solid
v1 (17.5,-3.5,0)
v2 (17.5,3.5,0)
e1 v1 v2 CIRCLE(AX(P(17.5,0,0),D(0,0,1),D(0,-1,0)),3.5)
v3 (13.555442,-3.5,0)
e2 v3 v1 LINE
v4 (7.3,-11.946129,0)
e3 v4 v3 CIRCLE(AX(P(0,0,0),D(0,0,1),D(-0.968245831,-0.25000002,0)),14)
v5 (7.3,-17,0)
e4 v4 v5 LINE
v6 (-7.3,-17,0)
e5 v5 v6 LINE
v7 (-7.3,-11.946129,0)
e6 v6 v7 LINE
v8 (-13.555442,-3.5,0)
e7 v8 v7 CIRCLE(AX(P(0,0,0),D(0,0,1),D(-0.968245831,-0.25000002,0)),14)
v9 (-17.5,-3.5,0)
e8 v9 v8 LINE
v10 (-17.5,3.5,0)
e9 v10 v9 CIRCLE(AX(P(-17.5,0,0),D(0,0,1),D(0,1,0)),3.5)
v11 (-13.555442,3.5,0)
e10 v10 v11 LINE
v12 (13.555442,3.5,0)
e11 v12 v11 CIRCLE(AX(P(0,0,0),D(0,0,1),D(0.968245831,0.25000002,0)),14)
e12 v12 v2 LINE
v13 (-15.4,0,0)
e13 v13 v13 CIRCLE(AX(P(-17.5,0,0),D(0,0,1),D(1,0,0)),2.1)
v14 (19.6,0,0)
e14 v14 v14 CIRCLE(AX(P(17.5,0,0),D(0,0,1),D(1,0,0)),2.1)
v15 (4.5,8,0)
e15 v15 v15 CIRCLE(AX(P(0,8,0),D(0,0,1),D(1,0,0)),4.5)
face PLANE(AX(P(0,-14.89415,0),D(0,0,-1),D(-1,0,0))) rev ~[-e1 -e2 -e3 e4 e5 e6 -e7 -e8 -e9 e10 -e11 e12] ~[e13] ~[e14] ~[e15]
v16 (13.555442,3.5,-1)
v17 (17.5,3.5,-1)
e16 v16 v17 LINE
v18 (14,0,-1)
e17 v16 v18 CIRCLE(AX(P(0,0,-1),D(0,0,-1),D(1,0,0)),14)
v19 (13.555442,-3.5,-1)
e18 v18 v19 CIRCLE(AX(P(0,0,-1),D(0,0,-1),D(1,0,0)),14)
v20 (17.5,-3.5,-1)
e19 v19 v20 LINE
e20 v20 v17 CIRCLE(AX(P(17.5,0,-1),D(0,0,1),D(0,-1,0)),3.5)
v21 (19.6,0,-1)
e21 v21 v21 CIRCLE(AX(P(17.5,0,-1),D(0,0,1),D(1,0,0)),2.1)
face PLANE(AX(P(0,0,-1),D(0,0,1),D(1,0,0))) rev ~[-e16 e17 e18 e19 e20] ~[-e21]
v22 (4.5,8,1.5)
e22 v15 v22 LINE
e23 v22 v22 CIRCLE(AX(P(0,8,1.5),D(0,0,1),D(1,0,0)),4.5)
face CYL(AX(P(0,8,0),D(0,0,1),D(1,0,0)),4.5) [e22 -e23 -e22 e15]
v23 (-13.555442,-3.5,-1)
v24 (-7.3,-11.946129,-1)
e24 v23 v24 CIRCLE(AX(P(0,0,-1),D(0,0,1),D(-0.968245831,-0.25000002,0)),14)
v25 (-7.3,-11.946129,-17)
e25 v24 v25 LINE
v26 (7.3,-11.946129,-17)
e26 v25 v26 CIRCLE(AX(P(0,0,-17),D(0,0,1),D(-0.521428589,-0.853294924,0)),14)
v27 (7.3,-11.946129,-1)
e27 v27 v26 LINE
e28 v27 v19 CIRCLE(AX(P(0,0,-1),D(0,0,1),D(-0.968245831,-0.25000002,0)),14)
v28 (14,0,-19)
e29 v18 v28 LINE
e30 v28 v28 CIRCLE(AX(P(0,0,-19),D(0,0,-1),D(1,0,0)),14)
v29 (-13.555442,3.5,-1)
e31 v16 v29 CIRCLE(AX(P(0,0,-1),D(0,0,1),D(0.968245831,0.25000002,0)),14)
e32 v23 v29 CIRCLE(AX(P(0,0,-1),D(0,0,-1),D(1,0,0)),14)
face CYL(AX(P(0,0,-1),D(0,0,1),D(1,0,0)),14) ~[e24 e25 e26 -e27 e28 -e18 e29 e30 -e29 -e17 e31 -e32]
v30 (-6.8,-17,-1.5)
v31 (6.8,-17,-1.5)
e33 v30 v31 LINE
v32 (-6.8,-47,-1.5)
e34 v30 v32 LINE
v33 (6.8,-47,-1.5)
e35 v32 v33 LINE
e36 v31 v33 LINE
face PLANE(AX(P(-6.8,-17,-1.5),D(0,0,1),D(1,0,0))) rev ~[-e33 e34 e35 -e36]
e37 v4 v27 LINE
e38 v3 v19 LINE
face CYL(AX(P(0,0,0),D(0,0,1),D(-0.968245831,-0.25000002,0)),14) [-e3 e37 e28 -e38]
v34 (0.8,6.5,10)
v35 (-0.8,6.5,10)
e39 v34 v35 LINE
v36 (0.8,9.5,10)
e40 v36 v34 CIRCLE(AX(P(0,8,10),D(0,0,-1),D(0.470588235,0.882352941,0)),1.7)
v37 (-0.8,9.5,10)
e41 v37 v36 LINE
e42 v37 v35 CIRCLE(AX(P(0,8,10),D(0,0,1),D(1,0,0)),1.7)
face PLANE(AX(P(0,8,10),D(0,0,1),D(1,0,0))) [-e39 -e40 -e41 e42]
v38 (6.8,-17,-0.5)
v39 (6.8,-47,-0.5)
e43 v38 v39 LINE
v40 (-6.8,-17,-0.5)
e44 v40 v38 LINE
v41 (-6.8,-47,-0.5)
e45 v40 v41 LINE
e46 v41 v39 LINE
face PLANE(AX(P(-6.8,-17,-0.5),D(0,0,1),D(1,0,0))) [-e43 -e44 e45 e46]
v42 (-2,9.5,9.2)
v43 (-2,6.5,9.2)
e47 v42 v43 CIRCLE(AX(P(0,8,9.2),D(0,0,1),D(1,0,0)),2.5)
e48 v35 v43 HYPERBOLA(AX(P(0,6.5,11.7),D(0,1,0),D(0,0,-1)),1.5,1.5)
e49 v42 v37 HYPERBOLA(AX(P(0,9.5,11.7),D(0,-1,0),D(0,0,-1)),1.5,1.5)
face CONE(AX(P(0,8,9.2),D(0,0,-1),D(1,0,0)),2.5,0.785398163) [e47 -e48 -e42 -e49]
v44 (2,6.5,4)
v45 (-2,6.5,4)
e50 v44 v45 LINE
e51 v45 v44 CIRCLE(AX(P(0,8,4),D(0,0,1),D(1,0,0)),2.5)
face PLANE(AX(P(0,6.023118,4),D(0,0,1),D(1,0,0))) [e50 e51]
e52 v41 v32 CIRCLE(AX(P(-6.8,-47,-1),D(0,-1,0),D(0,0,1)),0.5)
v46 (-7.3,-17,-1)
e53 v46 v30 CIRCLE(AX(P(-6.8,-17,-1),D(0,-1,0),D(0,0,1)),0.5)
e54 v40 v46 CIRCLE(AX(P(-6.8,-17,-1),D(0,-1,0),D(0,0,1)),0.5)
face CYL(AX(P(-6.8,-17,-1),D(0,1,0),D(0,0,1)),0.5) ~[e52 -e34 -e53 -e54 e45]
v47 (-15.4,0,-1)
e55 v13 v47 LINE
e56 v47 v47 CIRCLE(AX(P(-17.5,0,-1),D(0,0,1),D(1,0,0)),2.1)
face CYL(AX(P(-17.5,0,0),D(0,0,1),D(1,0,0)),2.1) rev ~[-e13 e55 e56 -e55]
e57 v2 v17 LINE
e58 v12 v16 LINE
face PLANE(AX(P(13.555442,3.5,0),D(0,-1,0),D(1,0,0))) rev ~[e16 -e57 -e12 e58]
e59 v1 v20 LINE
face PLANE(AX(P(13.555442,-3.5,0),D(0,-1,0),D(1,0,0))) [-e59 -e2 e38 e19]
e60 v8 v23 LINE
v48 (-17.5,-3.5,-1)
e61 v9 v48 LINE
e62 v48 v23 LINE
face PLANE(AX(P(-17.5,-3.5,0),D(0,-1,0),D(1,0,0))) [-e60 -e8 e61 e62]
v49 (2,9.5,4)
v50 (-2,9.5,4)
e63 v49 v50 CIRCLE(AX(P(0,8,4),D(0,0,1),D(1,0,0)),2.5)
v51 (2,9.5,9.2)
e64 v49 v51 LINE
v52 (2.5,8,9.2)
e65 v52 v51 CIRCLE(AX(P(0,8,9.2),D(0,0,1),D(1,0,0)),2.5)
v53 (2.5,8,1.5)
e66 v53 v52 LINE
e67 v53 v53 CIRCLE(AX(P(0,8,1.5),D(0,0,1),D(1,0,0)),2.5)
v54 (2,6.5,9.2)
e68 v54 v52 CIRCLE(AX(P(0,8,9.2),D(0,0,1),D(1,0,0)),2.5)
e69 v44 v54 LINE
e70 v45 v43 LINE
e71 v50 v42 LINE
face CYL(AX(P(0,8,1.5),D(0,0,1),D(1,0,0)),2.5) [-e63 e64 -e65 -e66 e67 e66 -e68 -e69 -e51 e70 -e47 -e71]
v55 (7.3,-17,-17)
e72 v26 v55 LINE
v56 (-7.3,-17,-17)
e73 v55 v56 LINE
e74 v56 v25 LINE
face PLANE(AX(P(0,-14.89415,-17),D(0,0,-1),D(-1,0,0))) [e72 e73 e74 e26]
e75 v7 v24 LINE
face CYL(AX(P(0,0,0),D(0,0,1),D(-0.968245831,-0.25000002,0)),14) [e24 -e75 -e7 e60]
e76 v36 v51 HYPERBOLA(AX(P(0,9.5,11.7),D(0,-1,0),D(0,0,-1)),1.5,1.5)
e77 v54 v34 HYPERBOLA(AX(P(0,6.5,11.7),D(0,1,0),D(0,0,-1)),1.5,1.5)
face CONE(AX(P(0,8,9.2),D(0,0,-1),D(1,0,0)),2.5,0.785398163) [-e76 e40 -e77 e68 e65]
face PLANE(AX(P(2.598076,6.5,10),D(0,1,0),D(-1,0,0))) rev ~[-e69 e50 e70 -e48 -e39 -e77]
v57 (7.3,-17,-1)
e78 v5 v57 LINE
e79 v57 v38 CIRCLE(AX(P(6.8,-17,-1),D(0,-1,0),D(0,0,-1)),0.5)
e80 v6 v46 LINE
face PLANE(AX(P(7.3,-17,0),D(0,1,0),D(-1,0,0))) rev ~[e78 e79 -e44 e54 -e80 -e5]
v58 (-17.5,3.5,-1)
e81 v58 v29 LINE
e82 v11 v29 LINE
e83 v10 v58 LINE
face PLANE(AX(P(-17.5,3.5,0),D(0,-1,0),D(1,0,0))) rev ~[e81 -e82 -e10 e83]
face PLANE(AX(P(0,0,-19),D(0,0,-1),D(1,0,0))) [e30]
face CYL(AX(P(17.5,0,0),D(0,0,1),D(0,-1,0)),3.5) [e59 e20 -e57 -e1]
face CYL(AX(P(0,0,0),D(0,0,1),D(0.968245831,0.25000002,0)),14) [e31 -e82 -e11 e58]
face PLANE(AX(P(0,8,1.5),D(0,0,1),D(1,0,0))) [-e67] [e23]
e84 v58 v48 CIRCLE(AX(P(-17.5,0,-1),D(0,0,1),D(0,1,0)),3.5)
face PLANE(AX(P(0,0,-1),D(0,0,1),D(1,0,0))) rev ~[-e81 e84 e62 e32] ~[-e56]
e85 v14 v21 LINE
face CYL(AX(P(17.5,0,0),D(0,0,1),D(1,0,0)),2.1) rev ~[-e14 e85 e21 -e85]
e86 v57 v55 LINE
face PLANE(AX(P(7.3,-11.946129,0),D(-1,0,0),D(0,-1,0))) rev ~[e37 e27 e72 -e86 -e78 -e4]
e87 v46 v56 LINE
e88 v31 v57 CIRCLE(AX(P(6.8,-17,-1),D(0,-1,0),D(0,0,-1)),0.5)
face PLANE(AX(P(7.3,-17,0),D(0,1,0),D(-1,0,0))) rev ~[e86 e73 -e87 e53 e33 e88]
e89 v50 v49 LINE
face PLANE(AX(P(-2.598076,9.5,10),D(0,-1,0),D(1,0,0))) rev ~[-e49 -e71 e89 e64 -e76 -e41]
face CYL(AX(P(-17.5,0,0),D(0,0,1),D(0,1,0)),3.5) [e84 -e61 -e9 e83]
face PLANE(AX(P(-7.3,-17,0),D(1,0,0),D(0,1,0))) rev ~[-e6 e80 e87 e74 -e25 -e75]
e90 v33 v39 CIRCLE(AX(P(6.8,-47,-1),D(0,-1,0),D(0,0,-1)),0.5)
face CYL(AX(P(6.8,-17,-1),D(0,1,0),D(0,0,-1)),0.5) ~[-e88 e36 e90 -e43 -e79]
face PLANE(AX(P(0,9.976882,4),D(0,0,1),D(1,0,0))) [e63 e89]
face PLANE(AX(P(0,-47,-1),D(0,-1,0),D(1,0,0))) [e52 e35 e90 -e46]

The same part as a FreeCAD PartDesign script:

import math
import FreeCAD as App
import Part
import Sketcher
from FreeCAD import Vector
Q = App.Units.Quantity


def add_polygon(sketch, points):
    """Adds a closed chain of lines whose ends are joined by coincident constraints."""
    first, n = sketch.GeometryCount, len(points)
    for a, b in zip(points, points[1:] + points[:1]):
        sketch.addGeometry(Part.LineSegment(App.Vector(*a, 0), App.Vector(*b, 0)), False)
    for i in range(n):
        sketch.addConstraint(Sketcher.Constraint("Coincident", first + i, 2, first + (i + 1) % n, 1))

doc = App.newDocument("Part")
body = doc.addObject("PartDesign::Body", "Body")

sketch1 = doc.addObject("Sketcher::SketchObject", "Sketch")
body.addObject(sketch1)
sketch1.AttachmentSupport = (doc.XY_Plane, [""])
sketch1.MapMode = "FlatFace"
sketch1.addGeometry([
    Part.ArcOfCircle(Part.Circle(Vector(0, 0, 0), Vector(0, 0, 1), 14), math.radians(14.477513), math.radians(165.522487)),
    Part.LineSegment(Vector(-13.555442, 3.5, 0), Vector(-17.5, 3.5, 0)),
    Part.ArcOfCircle(Part.Circle(Vector(-17.5, 0, 0), Vector(0, 0, 1), 3.5), math.radians(90), math.radians(270)),
    Part.LineSegment(Vector(-17.5, -3.5, 0), Vector(-13.555442, -3.5, 0)),
    Part.ArcOfCircle(Part.Circle(Vector(0, 0, 0), Vector(0, 0, 1), 14), math.radians(-165.522487), math.radians(-14.477513)),
    Part.LineSegment(Vector(13.555442, -3.5, 0), Vector(17.5, -3.5, 0)),
    Part.ArcOfCircle(Part.Circle(Vector(17.5, 0, 0), Vector(0, 0, 1), 3.5), math.radians(-90), math.radians(90)),
    Part.LineSegment(Vector(17.5, 3.5, 0), Vector(13.555442, 3.5, 0)),
    Part.Circle(Vector(-17.5, 0, 0), Vector(0, 0, 1), 2.1),
    Part.Circle(Vector(17.5, 0, 0), Vector(0, 0, 1), 2.1),
], False)
sketch1.addConstraint([
    Sketcher.Constraint("Coincident", 0, 2, 1, 1),
    Sketcher.Constraint("Tangent", 1, 2, 2, 1),
    Sketcher.Constraint("Tangent", 2, 2, 3, 1),
    Sketcher.Constraint("Coincident", 3, 2, 4, 1),
    Sketcher.Constraint("Coincident", 4, 2, 5, 1),
    Sketcher.Constraint("Tangent", 5, 2, 6, 1),
    Sketcher.Constraint("Tangent", 6, 2, 7, 1),
    Sketcher.Constraint("Coincident", 7, 2, 0, 1),
    Sketcher.Constraint("Horizontal", 1),
    Sketcher.Constraint("Horizontal", 3),
    Sketcher.Constraint("Horizontal", 5),
    Sketcher.Constraint("Horizontal", 7),
    Sketcher.Constraint("Coincident", 0, 3, -1, 1),
    Sketcher.Constraint("Coincident", 4, 3, -1, 1),
    Sketcher.Constraint("Coincident", 8, 3, 2, 3),
    Sketcher.Constraint("Coincident", 9, 3, 6, 3),
    Sketcher.Constraint("Equal", 0, 4),
    Sketcher.Constraint("Equal", 2, 6),
    Sketcher.Constraint("Equal", 8, 9),
    Sketcher.Constraint("Symmetric", 2, 3, 6, 3, -1, 1),
    Sketcher.Constraint("PointOnObject", 2, 3, -1),
    Sketcher.Constraint("Radius", 0, 14.0),
    Sketcher.Constraint("Diameter", 8, 4.2),
    Sketcher.Constraint("Radius", 2, 3.5),
    Sketcher.Constraint("DistanceX", 2, 3, 6, 3, 35.0),
])
pad1 = doc.addObject("PartDesign::Pad", "Pad")
body.addObject(pad1)
pad1.Profile = sketch1
pad1.Length = 1
pad1.Reversed = True

sketch2 = doc.addObject("Sketcher::SketchObject", "Sketch001")
body.addObject(sketch2)
sketch2.AttachmentSupport = (doc.XY_Plane, [""])
sketch2.MapMode = "FlatFace"
sketch2.AttachmentOffset = App.Placement(Vector(0, 0, -1), App.Rotation())
sketch2.addGeometry(Part.Circle(Vector(0, 0, 0), Vector(0, 0, 1), 14), False)
sketch2.addConstraint([
    Sketcher.Constraint("Coincident", 0, 3, -1, 1),
    Sketcher.Constraint("Diameter", 0, 28.0),
])
pad2 = doc.addObject("PartDesign::Pad", "Pad001")
body.addObject(pad2)
pad2.Profile = sketch2
pad2.Length = 18
pad2.Reversed = True

sketch3 = doc.addObject("Sketcher::SketchObject", "Sketch002")
body.addObject(sketch3)
sketch3.AttachmentSupport = (doc.XZ_Plane, [""])
sketch3.MapMode = "FlatFace"
sketch3.AttachmentOffset = App.Placement(Vector(0, 0, -8), App.Rotation())
add_polygon(sketch3, [(0, 0), (4.5, 0), (4.5, 1.5), (2.5, 1.5), (2.5, 9.2), (1.7, 10), (0, 10)])
sketch3.addConstraint([
    Sketcher.Constraint("Horizontal", 0),
    Sketcher.Constraint("Vertical", 1),
    Sketcher.Constraint("Horizontal", 2),
    Sketcher.Constraint("Vertical", 3),
    Sketcher.Constraint("Horizontal", 5),
    Sketcher.Constraint("Vertical", 6),
    Sketcher.Constraint("Coincident", 6, 2, -1, 1),
    Sketcher.Constraint("DistanceX", 2, 2, 2, 1, 2.0),
    Sketcher.Constraint("DistanceY", 6, 2, 6, 1, 10.0),
    Sketcher.Constraint("Angle", 4, Q("135 deg")),
    Sketcher.Constraint("DistanceX", 0, 1, 0, 2, 4.5),
    Sketcher.Constraint("DistanceX", 5, 2, 5, 1, 1.7),
    Sketcher.Constraint("DistanceY", 1, 1, 1, 2, 1.5),
])
revolution = doc.addObject("PartDesign::Revolution", "Revolution")
body.addObject(revolution)
revolution.Profile = sketch3
revolution.ReferenceAxis = (sketch3, ["V_Axis"])
revolution.Angle = 360

sketch4 = doc.addObject("Sketcher::SketchObject", "Sketch003")
body.addObject(sketch4)
sketch4.AttachmentSupport = (doc.XY_Plane, [""])
sketch4.MapMode = "FlatFace"
sketch4.AttachmentOffset = App.Placement(Vector(0, 0, 10), App.Rotation())
sketch4.addGeometry([
    Part.ArcOfCircle(Part.Circle(Vector(0, 8, 0), Vector(0, 0, 1), 3), math.radians(29.999996), math.radians(150.000004)),
    Part.LineSegment(Vector(-2.598076, 9.5, 0), Vector(2.598076, 9.5, 0)),
    Part.LineSegment(Vector(2.598076, 6.5, 0), Vector(-2.598076, 6.5, 0)),
    Part.ArcOfCircle(Part.Circle(Vector(0, 8, 0), Vector(0, 0, 1), 3), math.radians(-150.000004), math.radians(-29.999996)),
], False)
sketch4.addConstraint([
    Sketcher.Constraint("Coincident", 0, 1, 1, 2),
    Sketcher.Constraint("Coincident", 1, 1, 0, 2),
    Sketcher.Constraint("Coincident", 2, 1, 3, 2),
    Sketcher.Constraint("Coincident", 3, 1, 2, 2),
    Sketcher.Constraint("Horizontal", 1),
    Sketcher.Constraint("Horizontal", 2),
    Sketcher.Constraint("Coincident", 3, 3, 0, 3),
    Sketcher.Constraint("Equal", 0, 3),
    Sketcher.Constraint("PointOnObject", 0, 3, -2),
    Sketcher.Constraint("Vertical", 0, 1, 2, 1),
    Sketcher.Constraint("Radius", 0, 3.0),
    Sketcher.Constraint("DistanceY", -1, 1, 0, 3, 8.0),
    Sketcher.Constraint("DistanceY", 2, 1, 0, 1, 3.0),
])
pocket1 = doc.addObject("PartDesign::Pocket", "Pocket")
body.addObject(pocket1)
pocket1.Profile = sketch4
pocket1.Length = 6

sketch5 = doc.addObject("Sketcher::SketchObject", "Sketch004")
body.addObject(sketch5)
sketch5.AttachmentSupport = (doc.XY_Plane, [""])
sketch5.MapMode = "FlatFace"
sketch5.addGeometry([
    Part.ArcOfCircle(Part.Circle(Vector(0, 0, 0), Vector(0, 0, 1), 14), math.radians(-121.428127), math.radians(-58.571873)),
    Part.LineSegment(Vector(-7.3, -11.946129, 0), Vector(-7.3, -17, 0)),
    Part.LineSegment(Vector(-7.3, -17, 0), Vector(7.3, -17, 0)),
    Part.LineSegment(Vector(7.3, -17, 0), Vector(7.3, -11.946129, 0)),
], False)
sketch5.addConstraint([
    Sketcher.Constraint("Coincident", 0, 1, 1, 1),
    Sketcher.Constraint("Coincident", 1, 2, 2, 1),
    Sketcher.Constraint("Coincident", 2, 2, 3, 1),
    Sketcher.Constraint("Coincident", 3, 2, 0, 2),
    Sketcher.Constraint("Vertical", 1),
    Sketcher.Constraint("Horizontal", 2),
    Sketcher.Constraint("Vertical", 3),
    Sketcher.Constraint("Coincident", 0, 3, -1, 1),
    Sketcher.Constraint("Horizontal", 0, 1, 3, 2),
    Sketcher.Constraint("Radius", 0, 14.0),
    Sketcher.Constraint("DistanceX", 2, 1, 2, 2, 14.6),
    Sketcher.Constraint("DistanceY", 1, 2, -1, 1, 17.0),
])
pad3 = doc.addObject("PartDesign::Pad", "Pad002")
body.addObject(pad3)
pad3.Profile = sketch5
pad3.Length = 17
pad3.Reversed = True

sketch6 = doc.addObject("Sketcher::SketchObject", "Sketch005")
body.addObject(sketch6)
sketch6.AttachmentSupport = (doc.XZ_Plane, [""])
sketch6.MapMode = "FlatFace"
sketch6.AttachmentOffset = App.Placement(Vector(0, 0, 17), App.Rotation())
sketch6.addGeometry([
    Part.ArcOfCircle(Part.Circle(Vector(-6.8, -1, 0), Vector(0, 0, 1), 0.5), math.radians(90), math.radians(270)),
    Part.LineSegment(Vector(-6.8, -1.5, 0), Vector(6.8, -1.5, 0)),
    Part.ArcOfCircle(Part.Circle(Vector(6.8, -1, 0), Vector(0, 0, 1), 0.5), math.radians(-90), math.radians(90)),
    Part.LineSegment(Vector(6.8, -0.5, 0), Vector(-6.8, -0.5, 0)),
], False)
sketch6.addConstraint([
    Sketcher.Constraint("Tangent", 0, 2, 1, 1),
    Sketcher.Constraint("Tangent", 1, 2, 2, 1),
    Sketcher.Constraint("Tangent", 2, 2, 3, 1),
    Sketcher.Constraint("Tangent", 3, 2, 0, 1),
    Sketcher.Constraint("Horizontal", 1),
    Sketcher.Constraint("Horizontal", 3),
    Sketcher.Constraint("Radius", 0, 0.5),
    Sketcher.Constraint("DistanceX", 1, 1, 1, 2, 13.6),
    Sketcher.Constraint("DistanceY", 0, 3, -1, 1, 1.0),
    Sketcher.Constraint("DistanceX", 0, 3, -1, 1, 6.8),
])
pad4 = doc.addObject("PartDesign::Pad", "Pad003")
body.addObject(pad4)
pad4.Profile = sketch6
pad4.Length = 30

doc.recompute()
